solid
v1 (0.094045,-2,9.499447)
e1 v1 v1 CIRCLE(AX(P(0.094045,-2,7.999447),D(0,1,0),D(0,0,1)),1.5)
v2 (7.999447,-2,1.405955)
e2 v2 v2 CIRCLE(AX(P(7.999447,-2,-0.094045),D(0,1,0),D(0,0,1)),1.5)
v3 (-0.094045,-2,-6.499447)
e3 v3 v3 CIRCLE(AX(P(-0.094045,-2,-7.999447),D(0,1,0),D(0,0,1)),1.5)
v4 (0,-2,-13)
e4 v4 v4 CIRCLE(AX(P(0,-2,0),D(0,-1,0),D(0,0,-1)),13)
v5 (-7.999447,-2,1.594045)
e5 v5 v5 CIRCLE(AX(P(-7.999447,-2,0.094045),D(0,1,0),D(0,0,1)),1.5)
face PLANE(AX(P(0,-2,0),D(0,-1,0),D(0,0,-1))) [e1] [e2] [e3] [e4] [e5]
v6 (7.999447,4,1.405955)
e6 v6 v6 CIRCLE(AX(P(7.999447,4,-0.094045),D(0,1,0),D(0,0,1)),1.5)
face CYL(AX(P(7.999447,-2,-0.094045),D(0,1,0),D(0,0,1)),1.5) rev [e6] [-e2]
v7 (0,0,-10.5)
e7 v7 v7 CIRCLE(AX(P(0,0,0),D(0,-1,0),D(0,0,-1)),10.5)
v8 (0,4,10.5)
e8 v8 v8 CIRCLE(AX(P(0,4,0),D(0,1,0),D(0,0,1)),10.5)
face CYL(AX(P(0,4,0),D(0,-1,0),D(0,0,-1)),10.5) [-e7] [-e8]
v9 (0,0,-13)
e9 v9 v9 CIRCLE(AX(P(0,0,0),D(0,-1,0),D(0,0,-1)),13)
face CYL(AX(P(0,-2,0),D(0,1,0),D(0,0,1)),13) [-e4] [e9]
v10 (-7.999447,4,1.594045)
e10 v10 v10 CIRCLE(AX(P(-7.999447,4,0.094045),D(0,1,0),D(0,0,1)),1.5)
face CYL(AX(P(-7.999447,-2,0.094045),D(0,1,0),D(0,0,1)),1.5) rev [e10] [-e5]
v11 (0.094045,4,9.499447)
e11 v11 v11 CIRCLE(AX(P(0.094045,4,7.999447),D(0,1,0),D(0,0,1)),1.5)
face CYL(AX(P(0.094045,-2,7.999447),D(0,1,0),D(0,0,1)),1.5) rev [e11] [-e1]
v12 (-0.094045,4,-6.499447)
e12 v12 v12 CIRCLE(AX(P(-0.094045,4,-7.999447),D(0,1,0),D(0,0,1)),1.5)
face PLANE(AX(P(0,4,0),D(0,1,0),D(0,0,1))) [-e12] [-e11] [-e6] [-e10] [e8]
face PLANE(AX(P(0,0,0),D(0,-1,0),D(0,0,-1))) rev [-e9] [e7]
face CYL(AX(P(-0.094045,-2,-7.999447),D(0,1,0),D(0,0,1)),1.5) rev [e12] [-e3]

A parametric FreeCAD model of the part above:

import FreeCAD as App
import Part
import Sketcher

doc = App.newDocument("Part")
params = doc.addObject("Spreadsheet::Sheet", "Params")
for row, (alias, value) in enumerate([
    ("sketch1_diameter", "21 mm"),
    ("pad1_length", "4 mm"),
    ("sketch2_diameter", "26 mm"),
    ("pad2_length", "2 mm"),
    ("sketch3_diameter", "3 mm"),
], start=1):
    params.set(f"A{row}", alias)
    params.set(f"B{row}", "=" + value)
    params.setAlias(f"B{row}", alias)

body = doc.addObject("PartDesign::Body", "Body")

sketch1 = body.newObject("Sketcher::SketchObject", "Sketch")
sketch1.AttachmentSupport = (doc.getObject("XZ_Plane"), [""])
sketch1.MapMode = "FlatFace"
sketch1.addGeometry(Part.Circle(App.Vector(0, 0, 0), App.Vector(0, 0, 1), 10), False)
sketch1.addConstraint([
    Sketcher.Constraint("Coincident", 0, 3, -1, 1),
    Sketcher.Constraint("Diameter", 0, 21.0),
])
sketch1.setExpression("Constraints[1]", "Params.sketch1_diameter")
pad1 = body.newObject("PartDesign::Pad", "Pad")
pad1.Profile = sketch1
pad1.setExpression("Length", "Params.pad1_length")
pad1.Reversed = True

sketch2 = body.newObject("Sketcher::SketchObject", "Sketch001")
sketch2.AttachmentSupport = (doc.getObject("XZ_Plane"), [""])
sketch2.MapMode = "FlatFace"
sketch2.addGeometry(Part.Circle(App.Vector(0, 0, 0), App.Vector(0, 0, 1), 13), False)
sketch2.addConstraint([
    Sketcher.Constraint("Coincident", 0, 3, -1, 1),
    Sketcher.Constraint("Diameter", 0, 26.0),
])
sketch2.setExpression("Constraints[1]", "Params.sketch2_diameter")
pad2 = body.newObject("PartDesign::Pad", "Pad001")
pad2.Profile = sketch2
pad2.setExpression("Length", "Params.pad2_length")

sketch3 = body.newObject("Sketcher::SketchObject", "Sketch002")
sketch3.AttachmentSupport = (doc.getObject("XZ_Plane"), [""])
sketch3.MapMode = "FlatFace"
sketch3.AttachmentOffset = App.Placement(App.Vector(0, 0, -4), App.Rotation())
sketch3.addGeometry([
    Part.Circle(App.Vector(-8, 0.1, 0), App.Vector(0, 0, 1), 1.5),
    Part.Circle(App.Vector(-0.1, -8, 0), App.Vector(0, 0, 1), 1.5),
    Part.Circle(App.Vector(0.1, 8, 0), App.Vector(0, 0, 1), 1.5),
    Part.Circle(App.Vector(8, -0.1, 0), App.Vector(0, 0, 1), 1.5),
], False)
sketch3.addConstraint([
    Sketcher.Constraint("Equal", 0, 1),
    Sketcher.Constraint("Equal", 1, 2),
    Sketcher.Constraint("Equal", 2, 3),
    Sketcher.Constraint("Symmetric", 1, 3, 2, 3, -1, 1),
    Sketcher.Constraint("Symmetric", 0, 3, 3, 3, -1, 1),
    Sketcher.Constraint("Diameter", 0, 3.0),
    Sketcher.Constraint("DistanceY", 1, 3, 0, 3, 8.093492),
    Sketcher.Constraint("DistanceX", 0, 3, 2, 3, 8.093492),
    Sketcher.Constraint("DistanceX", 1, 3, 2, 3, 0.188089),
    Sketcher.Constraint("DistanceY", 3, 3, 0, 3, 0.188089),
])
sketch3.setExpression("Constraints[5]", "Params.sketch3_diameter")
pocket1 = body.newObject("PartDesign::Pocket", "Pocket")
pocket1.Profile = sketch3
pocket1.Type = "ThroughAll"
pocket1.Reversed = True

doc.recompute()
